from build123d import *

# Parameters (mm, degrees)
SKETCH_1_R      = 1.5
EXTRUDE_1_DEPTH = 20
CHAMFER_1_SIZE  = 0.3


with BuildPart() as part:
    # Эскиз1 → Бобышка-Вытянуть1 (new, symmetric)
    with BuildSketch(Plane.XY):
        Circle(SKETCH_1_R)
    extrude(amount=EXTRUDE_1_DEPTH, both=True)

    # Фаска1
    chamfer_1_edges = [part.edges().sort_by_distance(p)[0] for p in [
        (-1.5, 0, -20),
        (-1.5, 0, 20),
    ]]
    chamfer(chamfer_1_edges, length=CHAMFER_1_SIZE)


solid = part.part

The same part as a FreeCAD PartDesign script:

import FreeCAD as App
import Part
import Sketcher

V = App.Vector
Q = App.Units.Quantity


def edges_at(feature, points):
    """Names of the edges that pass closest to the given points."""
    edges = feature.Shape.Edges
    near = lambda p: min(range(len(edges)), key=lambda i: edges[i].distToShape(Part.Vertex(*p))[0])
    return sorted({f"Edge{near(p) + 1}" for p in points})

doc = App.newDocument("Part")
params = doc.addObject("Spreadsheet::Sheet", "Params")
for row, (alias, value) in enumerate([
    ("sketch1_diameter", "3 mm"),
    ("pad1_length", "40 mm"),
    ("chamfer_size", "0.3 mm"),
], start=1):
    params.set(f"A{row}", alias)
    params.set(f"B{row}", "=" + value)
    params.setAlias(f"B{row}", alias)

body = doc.addObject("PartDesign::Body", "Body")

# Sketch on XY plane
sketch1 = body.newObject("Sketcher::SketchObject", "Sketch")
sketch1.AttachmentSupport = (doc.getObject("XY_Plane"), [""])
sketch1.MapMode = "FlatFace"
sketch1.addGeometry(Part.Circle(V(0, 0, 0), V(0, 0, 1), 1.5), False)
sketch1.addConstraint(Sketcher.Constraint("Coincident", 0, 3, -1, 1))
sketch1.addConstraint(Sketcher.Constraint("Diameter", 0, Q("3 mm")))
sketch1.setExpression("Constraints[1]", "Params.sketch1_diameter")
pad1 = body.newObject("PartDesign::Pad", "Pad")
pad1.Profile = sketch1
pad1.setExpression("Length", "Params.pad1_length")
pad1.Midplane = True
doc.recompute()

chamfer = body.newObject("PartDesign::Chamfer", "Chamfer")
chamfer.Base = (pad1, edges_at(pad1, [(-1.5, 0, -20), (-1.5, 0, 20)]))
chamfer.setExpression("Size", "Params.chamfer_size")

doc.recompute()
